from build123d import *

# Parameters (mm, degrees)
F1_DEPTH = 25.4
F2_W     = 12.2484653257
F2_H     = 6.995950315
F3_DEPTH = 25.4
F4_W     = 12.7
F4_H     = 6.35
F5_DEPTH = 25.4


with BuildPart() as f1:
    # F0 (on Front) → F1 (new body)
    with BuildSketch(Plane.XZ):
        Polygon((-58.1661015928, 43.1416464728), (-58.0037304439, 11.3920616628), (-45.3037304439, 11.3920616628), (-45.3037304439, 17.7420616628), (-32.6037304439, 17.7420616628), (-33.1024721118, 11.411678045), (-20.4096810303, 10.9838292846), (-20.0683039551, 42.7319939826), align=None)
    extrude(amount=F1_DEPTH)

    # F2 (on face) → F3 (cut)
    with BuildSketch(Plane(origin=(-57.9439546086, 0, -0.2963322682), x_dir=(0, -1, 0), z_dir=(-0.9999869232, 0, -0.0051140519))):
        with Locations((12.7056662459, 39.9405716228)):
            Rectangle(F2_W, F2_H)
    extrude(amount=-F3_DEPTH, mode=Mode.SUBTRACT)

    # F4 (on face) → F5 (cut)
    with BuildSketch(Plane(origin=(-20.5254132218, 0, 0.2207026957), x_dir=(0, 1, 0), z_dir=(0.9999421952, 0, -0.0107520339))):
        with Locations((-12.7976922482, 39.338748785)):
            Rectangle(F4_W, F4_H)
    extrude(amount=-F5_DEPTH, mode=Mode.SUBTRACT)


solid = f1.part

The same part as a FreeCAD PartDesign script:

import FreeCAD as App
import Part
import Sketcher

V = App.Vector
Q = App.Units.Quantity

doc = App.newDocument("Part")
params = doc.addObject("Spreadsheet::Sheet", "Params")
for row, (alias, value) in enumerate([
    ("sketch1_width", "0.5 in"),
    ("sketch1_length", "0.5 in"),
    ("sketch1_length2", "1.5 in"),
    ("sketch1_height", "0.25 in"),
    ("sketch1_length3", "1.25 in"),
    ("pad1_length", "1 in"),
    ("pocket1_length", "1 in"),
    ("sketch3_width", "0.5 in"),
    ("sketch3_height", "0.25 in"),
    ("pocket2_length", "1 in"),
], start=1):
    params.set(f"A{row}", alias)
    params.set(f"B{row}", "=" + value)
    params.setAlias(f"B{row}", alias)

body = doc.addObject("PartDesign::Body", "Body")

# Sketch on XZ plane
sketch1 = body.newObject("Sketcher::SketchObject", "Sketch")
sketch1.AttachmentSupport = (doc.getObject("XZ_Plane"), [""])
sketch1.MapMode = "FlatFace"
sketch1.addGeometry([
    Part.LineSegment(V(-58.166102, 43.141646, 0), V(-58.00373, 11.392062, 0)),  # 0
    Part.LineSegment(V(-58.00373, 11.392062, 0), V(-45.30373, 11.392062, 0)),  # 1
    Part.LineSegment(V(-45.30373, 11.392062, 0), V(-45.30373, 17.742062, 0)),  # 2
    Part.LineSegment(V(-45.30373, 17.742062, 0), V(-32.60373, 17.742062, 0)),  # 3
    Part.LineSegment(V(-32.60373, 17.742062, 0), V(-33.102472, 11.411678, 0)),  # 4
    Part.LineSegment(V(-33.102472, 11.411678, 0), V(-20.409681, 10.983829, 0)),  # 5
    Part.LineSegment(V(-20.409681, 10.983829, 0), V(-20.068304, 42.731994, 0)),  # 6
    Part.LineSegment(V(-20.068304, 42.731994, 0), V(-58.166102, 43.141646, 0)),  # 7
], False)
sketch1.addConstraint([
    Sketcher.Constraint("Coincident", 0, 2, 1, 1),
    Sketcher.Constraint("Coincident", 1, 2, 2, 1),
    Sketcher.Constraint("Coincident", 2, 2, 3, 1),
    Sketcher.Constraint("Coincident", 3, 2, 4, 1),
    Sketcher.Constraint("Coincident", 4, 2, 5, 1),
    Sketcher.Constraint("Coincident", 5, 2, 6, 1),
    Sketcher.Constraint("Coincident", 6, 2, 7, 1),
    Sketcher.Constraint("Coincident", 7, 2, 0, 1),
    Sketcher.Constraint("Horizontal", 1),
    Sketcher.Constraint("Vertical", 2),
    Sketcher.Constraint("Horizontal", 3),
    Sketcher.Constraint("Perpendicular", 6, 7),
    Sketcher.Constraint("Equal", 1, 3),
    Sketcher.Constraint("Equal", 0, 6),
    Sketcher.Constraint("DistanceX", 1, 1, 1, 2, Q("0.5 in")),
    Sketcher.Constraint("Distance", 5, Q("0.5 in")),
    Sketcher.Constraint("Distance", 7, Q("1.5 in")),
    Sketcher.Constraint("DistanceY", 2, 1, 2, 2, Q("0.25 in")),
    Sketcher.Constraint("Distance", 0, Q("1.25 in")),
    Sketcher.Constraint("Distance", 4, Q("0.25 in")),
    Sketcher.Constraint("DistanceX", 7, 2, -1, 1, Q("58.166102 mm")),
    Sketcher.Constraint("DistanceX", 0, 2, -1, 1, Q("58.00373 mm")),
    Sketcher.Constraint("DistanceY", -1, 1, 0, 2, Q("11.392062 mm")),
    Sketcher.Constraint("DistanceY", -1, 1, 4, 2, Q("11.411678 mm")),
])
sketch1.setExpression("Constraints[14]", "Params.sketch1_width")
sketch1.setExpression("Constraints[15]", "Params.sketch1_length")
sketch1.setExpression("Constraints[16]", "Params.sketch1_length2")
sketch1.setExpression("Constraints[17]", "Params.sketch1_height")
sketch1.setExpression("Constraints[18]", "Params.sketch1_length3")
pad1 = body.newObject("PartDesign::Pad", "Pad")
pad1.Profile = sketch1
pad1.setExpression("Length", "Params.pad1_length")

# Sketch on an angled plane
sketch2 = body.newObject("Sketcher::SketchObject", "Sketch001")
sketch2.Placement = App.Placement(V(-57.943955, 0, -0.296332), App.Rotation(V(0, -1, 0), V(-0.005114052, 0, 0.999986923), V(-0.999986923, 0, -0.005114052), "ZXY"))
sketch2.addGeometry([
    Part.LineSegment(V(7, 43, 0), V(7, 36, 0)),
    Part.LineSegment(V(7, 36, 0), V(19, 36, 0)),
    Part.LineSegment(V(19, 36, 0), V(19, 43, 0)),
    Part.LineSegment(V(19, 43, 0), V(7, 43, 0)),
], False)
sketch2.addConstraint([
    Sketcher.Constraint("Coincident", 0, 2, 1, 1),
    Sketcher.Constraint("Coincident", 1, 2, 2, 1),
    Sketcher.Constraint("Coincident", 2, 2, 3, 1),
    Sketcher.Constraint("Coincident", 3, 2, 0, 1),
    Sketcher.Constraint("Vertical", 0),
    Sketcher.Constraint("Horizontal", 1),
    Sketcher.Constraint("Vertical", 2),
    Sketcher.Constraint("Horizontal", 3),
    Sketcher.Constraint("DistanceY", 0, 2, 0, 1, Q("6.99595 mm")),
    Sketcher.Constraint("DistanceX", -1, 1, 1, 2, Q("18.829899 mm")),
    Sketcher.Constraint("DistanceX", 1, 1, 1, 2, Q("12.248465 mm")),
    Sketcher.Constraint("DistanceY", -1, 1, 0, 2, Q("36.442596 mm")),
])
pocket1 = body.newObject("PartDesign::Pocket", "Pocket")
pocket1.Profile = sketch2
pocket1.setExpression("Length", "Params.pocket1_length")

# Sketch on an angled plane
sketch3 = body.newObject("Sketcher::SketchObject", "Sketch002")
sketch3.Placement = App.Placement(V(-20.525413, 0, 0.220703), App.Rotation(V(0, 1, 0), V(0.010752034, 0, 0.999942195), V(0.999942195, 0, -0.010752034), "ZXY"))
sketch3.addGeometry([
    Part.LineSegment(V(-19, 43, 0), V(-19, 36, 0)),
    Part.LineSegment(V(-19, 36, 0), V(-6, 36, 0)),
    Part.LineSegment(V(-6, 36, 0), V(-6, 43, 0)),
    Part.LineSegment(V(-6, 43, 0), V(-19, 43, 0)),
], False)
sketch3.addConstraint([
    Sketcher.Constraint("Coincident", 0, 2, 1, 1),
    Sketcher.Constraint("Coincident", 1, 2, 2, 1),
    Sketcher.Constraint("Coincident", 2, 2, 3, 1),
    Sketcher.Constraint("Coincident", 3, 2, 0, 1),
    Sketcher.Constraint("Vertical", 0),
    Sketcher.Constraint("Horizontal", 1),
    Sketcher.Constraint("Vertical", 2),
    Sketcher.Constraint("Horizontal", 3),
    Sketcher.Constraint("DistanceX", 1, 1, 1, 2, Q("0.5 in")),
    Sketcher.Constraint("DistanceY", 0, 2, 0, 1, Q("0.25 in")),
    Sketcher.Constraint("DistanceY", -1, 1, 0, 2, Q("36.163749 mm")),
    Sketcher.Constraint("DistanceX", 0, 2, -1, 1, Q("19.147692 mm")),
])
sketch3.setExpression("Constraints[8]", "Params.sketch3_width")
sketch3.setExpression("Constraints[9]", "Params.sketch3_height")
pocket2 = body.newObject("PartDesign::Pocket", "Pocket001")
pocket2.Profile = sketch3
pocket2.setExpression("Length", "Params.pocket2_length")

doc.recompute()
